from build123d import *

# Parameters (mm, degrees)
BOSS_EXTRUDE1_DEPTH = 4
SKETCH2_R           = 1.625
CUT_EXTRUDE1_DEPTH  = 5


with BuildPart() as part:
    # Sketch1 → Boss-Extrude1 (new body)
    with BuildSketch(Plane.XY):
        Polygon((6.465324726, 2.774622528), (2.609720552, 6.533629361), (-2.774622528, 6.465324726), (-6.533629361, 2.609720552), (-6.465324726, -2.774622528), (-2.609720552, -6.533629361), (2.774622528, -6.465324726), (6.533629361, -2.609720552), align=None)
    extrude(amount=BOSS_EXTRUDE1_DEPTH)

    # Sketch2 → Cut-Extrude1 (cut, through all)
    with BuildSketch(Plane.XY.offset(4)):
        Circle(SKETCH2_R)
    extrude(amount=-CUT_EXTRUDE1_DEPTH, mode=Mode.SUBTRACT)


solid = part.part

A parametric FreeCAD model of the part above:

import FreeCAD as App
import Part
import Sketcher
from FreeCAD import Vector
Q = App.Units.Quantity


def add_polygon(sketch, points):
    """Adds a closed chain of lines whose ends are joined by coincident constraints."""
    first, n = sketch.GeometryCount, len(points)
    for a, b in zip(points, points[1:] + points[:1]):
        sketch.addGeometry(Part.LineSegment(App.Vector(*a, 0), App.Vector(*b, 0)), False)
    for i in range(n):
        sketch.addConstraint(Sketcher.Constraint("Coincident", first + i, 2, first + (i + 1) % n, 1))

doc = App.newDocument("Part")
body = doc.addObject("PartDesign::Body", "Body")

sketch1 = body.newObject("Sketcher::SketchObject", "Sketch")
sketch1.AttachmentSupport = (doc.getObject("XY_Plane"), [""])
sketch1.MapMode = "FlatFace"
add_polygon(sketch1, [(6.465325, 2.774623), (2.609721, 6.533629), (-2.774623, 6.465325), (-6.533629, 2.609721), (-6.465325, -2.774623), (-2.609721, -6.533629), (2.774623, -6.465325), (6.533629, -2.609721)])
sketch1.addConstraint([
    Sketcher.Constraint("Symmetric", 0, 2, 4, 2, -1, 1),
    Sketcher.Constraint("Symmetric", 1, 2, 5, 2, -1, 1),
    Sketcher.Constraint("Symmetric", 2, 2, 6, 2, -1, 1),
    Sketcher.Constraint("Symmetric", 3, 2, 7, 2, -1, 1),
    Sketcher.Constraint("Perpendicular", 0, 2),
    Sketcher.Constraint("Perpendicular", 1, 3),
    Sketcher.Constraint("Equal", 0, 1),
    Sketcher.Constraint("Equal", 1, 2),
    Sketcher.Constraint("Equal", 2, 3),
    Sketcher.Constraint("DistanceX", 1, 2, 4, 2, Q("0.164902 mm")),
    Sketcher.Constraint("DistanceX", -1, 1, 0, 2, Q("2.609721 mm")),
    Sketcher.Constraint("DistanceY", -1, 1, 0, 2, Q("6.533629 mm")),
])
pad1 = body.newObject("PartDesign::Pad", "Pad")
pad1.Profile = sketch1
pad1.Length = 4

sketch2 = body.newObject("Sketcher::SketchObject", "Sketch001")
sketch2.AttachmentSupport = (doc.getObject("XY_Plane"), [""])
sketch2.MapMode = "FlatFace"
sketch2.AttachmentOffset = App.Placement(Vector(0, 0, 4), App.Rotation())
sketch2.addGeometry(Part.Circle(Vector(0, 0, 0), Vector(0, 0, 1), 1.625), False)
sketch2.addConstraint([
    Sketcher.Constraint("Coincident", 0, 3, -1, 1),
    Sketcher.Constraint("Diameter", 0, Q("3.25 mm")),
])
pocket1 = body.newObject("PartDesign::Pocket", "Pocket")
pocket1.Profile = sketch2
pocket1.Type = "ThroughAll"

doc.recompute()
